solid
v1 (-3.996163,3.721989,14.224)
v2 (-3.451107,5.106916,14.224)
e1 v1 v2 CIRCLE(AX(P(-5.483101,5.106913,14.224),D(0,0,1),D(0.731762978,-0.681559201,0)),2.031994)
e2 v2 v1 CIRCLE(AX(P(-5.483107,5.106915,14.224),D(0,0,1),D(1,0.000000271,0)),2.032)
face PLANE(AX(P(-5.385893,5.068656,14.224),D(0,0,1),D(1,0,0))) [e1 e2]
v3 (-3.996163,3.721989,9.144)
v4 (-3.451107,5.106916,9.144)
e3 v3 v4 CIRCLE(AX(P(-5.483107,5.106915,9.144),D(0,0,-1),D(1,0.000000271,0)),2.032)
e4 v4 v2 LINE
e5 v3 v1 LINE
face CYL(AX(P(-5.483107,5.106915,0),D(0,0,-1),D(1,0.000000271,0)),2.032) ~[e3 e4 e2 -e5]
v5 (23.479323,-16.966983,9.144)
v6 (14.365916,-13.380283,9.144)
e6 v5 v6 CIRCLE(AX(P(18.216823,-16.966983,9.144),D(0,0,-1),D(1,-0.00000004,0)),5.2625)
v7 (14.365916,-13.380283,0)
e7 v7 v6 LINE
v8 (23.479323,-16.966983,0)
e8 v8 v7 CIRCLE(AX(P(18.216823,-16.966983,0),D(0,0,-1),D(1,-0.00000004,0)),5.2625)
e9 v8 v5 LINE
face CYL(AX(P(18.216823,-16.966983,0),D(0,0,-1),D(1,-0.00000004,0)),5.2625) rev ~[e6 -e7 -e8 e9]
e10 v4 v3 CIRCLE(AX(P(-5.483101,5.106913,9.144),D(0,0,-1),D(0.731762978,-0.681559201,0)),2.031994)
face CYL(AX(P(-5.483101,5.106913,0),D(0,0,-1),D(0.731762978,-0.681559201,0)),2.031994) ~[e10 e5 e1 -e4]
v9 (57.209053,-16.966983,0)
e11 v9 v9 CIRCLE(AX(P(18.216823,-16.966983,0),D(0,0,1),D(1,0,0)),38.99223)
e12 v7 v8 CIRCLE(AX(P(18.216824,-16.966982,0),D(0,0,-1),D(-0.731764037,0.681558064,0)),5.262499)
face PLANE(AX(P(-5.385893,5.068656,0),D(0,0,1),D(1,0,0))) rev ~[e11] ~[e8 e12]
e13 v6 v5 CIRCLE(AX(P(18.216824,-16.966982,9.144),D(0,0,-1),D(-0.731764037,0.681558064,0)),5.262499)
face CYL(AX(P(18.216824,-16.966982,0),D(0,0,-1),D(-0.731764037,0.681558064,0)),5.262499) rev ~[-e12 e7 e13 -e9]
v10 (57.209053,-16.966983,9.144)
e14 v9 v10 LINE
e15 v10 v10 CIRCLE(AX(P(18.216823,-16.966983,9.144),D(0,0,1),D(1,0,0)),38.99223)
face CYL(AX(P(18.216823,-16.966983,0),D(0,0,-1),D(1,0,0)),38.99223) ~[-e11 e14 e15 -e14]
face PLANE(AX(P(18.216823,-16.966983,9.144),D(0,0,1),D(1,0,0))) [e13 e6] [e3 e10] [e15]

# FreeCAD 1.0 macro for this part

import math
import FreeCAD as App
import Part
import Sketcher
from FreeCAD import Vector
Q = App.Units.Quantity

doc = App.newDocument("Part")
body = doc.addObject("PartDesign::Body", "Body")

# Sketch on XY plane
sketch1 = doc.addObject("Sketcher::SketchObject", "Sketch")
body.addObject(sketch1)
sketch1.AttachmentSupport = (doc.XY_Plane, [""])
sketch1.MapMode = "FlatFace"
sketch1.addGeometry(Part.Circle(Vector(18, -17, 0), Vector(0, 0, 1), 39), False)
sketch1.addGeometry(Part.ArcOfCircle(Part.Circle(Vector(18, -17, 0), Vector(0, 0, 1), 5), math.radians(137), math.radians(360)), False)
sketch1.addGeometry(Part.ArcOfCircle(Part.Circle(Vector(18, -17, 0), Vector(0, 0, 1), 5), math.radians(0), math.radians(137)), False)
sketch1.addConstraint(Sketcher.Constraint("Tangent", 1, 1, 2, 2))
sketch1.addConstraint(Sketcher.Constraint("Coincident", 2, 1, 1, 2))
sketch1.addConstraint(Sketcher.Constraint("Coincident", 1, 3, 0, 3))
sketch1.addConstraint(Sketcher.Constraint("Horizontal", 1, 3, 2, 1))
sketch1.addConstraint(Sketcher.Constraint("Radius", 1, 5.2625))
sketch1.addConstraint(Sketcher.Constraint("Diameter", 0, 77.98446))
sketch1.addConstraint(Sketcher.Constraint("DistanceY", 2, 3, 1, 1, 3.586699))
sketch1.addConstraint(Sketcher.Constraint("DistanceY", 2, 3, -1, 1, 16.966982))
sketch1.addConstraint(Sketcher.Constraint("DistanceX", -1, 1, 0, 3, 18.216823))
pad1 = doc.addObject("PartDesign::Pad", "Pad")
body.addObject(pad1)
pad1.Profile = sketch1
pad1.Length = Q("0.36 in")

# Sketch on XY plane
sketch2 = doc.addObject("Sketcher::SketchObject", "Sketch001")
body.addObject(sketch2)
sketch2.AttachmentSupport = (doc.XY_Plane, [""])
sketch2.MapMode = "FlatFace"
sketch2.addGeometry(Part.ArcOfCircle(Part.Circle(Vector(-5.5, 5.1, 0), Vector(0, 0, 1), 2), math.radians(0), math.radians(317)), False)
sketch2.addGeometry(Part.ArcOfCircle(Part.Circle(Vector(-5.5, 5.1, 0), Vector(0, 0, 1), 2), math.radians(-43), math.radians(0)), False)
sketch2.addConstraint(Sketcher.Constraint("Tangent", 0, 1, 1, 2))
sketch2.addConstraint(Sketcher.Constraint("Coincident", 1, 1, 0, 2))
sketch2.addConstraint(Sketcher.Constraint("Radius", 0, Q("0.08 in")))
sketch2.addConstraint(Sketcher.Constraint("DistanceX", 1, 3, -1, 1, 5.483101))
sketch2.addConstraint(Sketcher.Constraint("DistanceY", -1, 1, 1, 1, 3.721989))
sketch2.addConstraint(Sketcher.Constraint("DistanceY", -1, 1, 0, 3, 5.106915))
sketch2.addConstraint(Sketcher.Constraint("DistanceY", -1, 1, 0, 1, 5.106916))
pad2 = doc.addObject("PartDesign::Pad", "Pad001")
body.addObject(pad2)
pad2.Profile = sketch2
pad2.Length = Q("0.56 in")

doc.recompute()
